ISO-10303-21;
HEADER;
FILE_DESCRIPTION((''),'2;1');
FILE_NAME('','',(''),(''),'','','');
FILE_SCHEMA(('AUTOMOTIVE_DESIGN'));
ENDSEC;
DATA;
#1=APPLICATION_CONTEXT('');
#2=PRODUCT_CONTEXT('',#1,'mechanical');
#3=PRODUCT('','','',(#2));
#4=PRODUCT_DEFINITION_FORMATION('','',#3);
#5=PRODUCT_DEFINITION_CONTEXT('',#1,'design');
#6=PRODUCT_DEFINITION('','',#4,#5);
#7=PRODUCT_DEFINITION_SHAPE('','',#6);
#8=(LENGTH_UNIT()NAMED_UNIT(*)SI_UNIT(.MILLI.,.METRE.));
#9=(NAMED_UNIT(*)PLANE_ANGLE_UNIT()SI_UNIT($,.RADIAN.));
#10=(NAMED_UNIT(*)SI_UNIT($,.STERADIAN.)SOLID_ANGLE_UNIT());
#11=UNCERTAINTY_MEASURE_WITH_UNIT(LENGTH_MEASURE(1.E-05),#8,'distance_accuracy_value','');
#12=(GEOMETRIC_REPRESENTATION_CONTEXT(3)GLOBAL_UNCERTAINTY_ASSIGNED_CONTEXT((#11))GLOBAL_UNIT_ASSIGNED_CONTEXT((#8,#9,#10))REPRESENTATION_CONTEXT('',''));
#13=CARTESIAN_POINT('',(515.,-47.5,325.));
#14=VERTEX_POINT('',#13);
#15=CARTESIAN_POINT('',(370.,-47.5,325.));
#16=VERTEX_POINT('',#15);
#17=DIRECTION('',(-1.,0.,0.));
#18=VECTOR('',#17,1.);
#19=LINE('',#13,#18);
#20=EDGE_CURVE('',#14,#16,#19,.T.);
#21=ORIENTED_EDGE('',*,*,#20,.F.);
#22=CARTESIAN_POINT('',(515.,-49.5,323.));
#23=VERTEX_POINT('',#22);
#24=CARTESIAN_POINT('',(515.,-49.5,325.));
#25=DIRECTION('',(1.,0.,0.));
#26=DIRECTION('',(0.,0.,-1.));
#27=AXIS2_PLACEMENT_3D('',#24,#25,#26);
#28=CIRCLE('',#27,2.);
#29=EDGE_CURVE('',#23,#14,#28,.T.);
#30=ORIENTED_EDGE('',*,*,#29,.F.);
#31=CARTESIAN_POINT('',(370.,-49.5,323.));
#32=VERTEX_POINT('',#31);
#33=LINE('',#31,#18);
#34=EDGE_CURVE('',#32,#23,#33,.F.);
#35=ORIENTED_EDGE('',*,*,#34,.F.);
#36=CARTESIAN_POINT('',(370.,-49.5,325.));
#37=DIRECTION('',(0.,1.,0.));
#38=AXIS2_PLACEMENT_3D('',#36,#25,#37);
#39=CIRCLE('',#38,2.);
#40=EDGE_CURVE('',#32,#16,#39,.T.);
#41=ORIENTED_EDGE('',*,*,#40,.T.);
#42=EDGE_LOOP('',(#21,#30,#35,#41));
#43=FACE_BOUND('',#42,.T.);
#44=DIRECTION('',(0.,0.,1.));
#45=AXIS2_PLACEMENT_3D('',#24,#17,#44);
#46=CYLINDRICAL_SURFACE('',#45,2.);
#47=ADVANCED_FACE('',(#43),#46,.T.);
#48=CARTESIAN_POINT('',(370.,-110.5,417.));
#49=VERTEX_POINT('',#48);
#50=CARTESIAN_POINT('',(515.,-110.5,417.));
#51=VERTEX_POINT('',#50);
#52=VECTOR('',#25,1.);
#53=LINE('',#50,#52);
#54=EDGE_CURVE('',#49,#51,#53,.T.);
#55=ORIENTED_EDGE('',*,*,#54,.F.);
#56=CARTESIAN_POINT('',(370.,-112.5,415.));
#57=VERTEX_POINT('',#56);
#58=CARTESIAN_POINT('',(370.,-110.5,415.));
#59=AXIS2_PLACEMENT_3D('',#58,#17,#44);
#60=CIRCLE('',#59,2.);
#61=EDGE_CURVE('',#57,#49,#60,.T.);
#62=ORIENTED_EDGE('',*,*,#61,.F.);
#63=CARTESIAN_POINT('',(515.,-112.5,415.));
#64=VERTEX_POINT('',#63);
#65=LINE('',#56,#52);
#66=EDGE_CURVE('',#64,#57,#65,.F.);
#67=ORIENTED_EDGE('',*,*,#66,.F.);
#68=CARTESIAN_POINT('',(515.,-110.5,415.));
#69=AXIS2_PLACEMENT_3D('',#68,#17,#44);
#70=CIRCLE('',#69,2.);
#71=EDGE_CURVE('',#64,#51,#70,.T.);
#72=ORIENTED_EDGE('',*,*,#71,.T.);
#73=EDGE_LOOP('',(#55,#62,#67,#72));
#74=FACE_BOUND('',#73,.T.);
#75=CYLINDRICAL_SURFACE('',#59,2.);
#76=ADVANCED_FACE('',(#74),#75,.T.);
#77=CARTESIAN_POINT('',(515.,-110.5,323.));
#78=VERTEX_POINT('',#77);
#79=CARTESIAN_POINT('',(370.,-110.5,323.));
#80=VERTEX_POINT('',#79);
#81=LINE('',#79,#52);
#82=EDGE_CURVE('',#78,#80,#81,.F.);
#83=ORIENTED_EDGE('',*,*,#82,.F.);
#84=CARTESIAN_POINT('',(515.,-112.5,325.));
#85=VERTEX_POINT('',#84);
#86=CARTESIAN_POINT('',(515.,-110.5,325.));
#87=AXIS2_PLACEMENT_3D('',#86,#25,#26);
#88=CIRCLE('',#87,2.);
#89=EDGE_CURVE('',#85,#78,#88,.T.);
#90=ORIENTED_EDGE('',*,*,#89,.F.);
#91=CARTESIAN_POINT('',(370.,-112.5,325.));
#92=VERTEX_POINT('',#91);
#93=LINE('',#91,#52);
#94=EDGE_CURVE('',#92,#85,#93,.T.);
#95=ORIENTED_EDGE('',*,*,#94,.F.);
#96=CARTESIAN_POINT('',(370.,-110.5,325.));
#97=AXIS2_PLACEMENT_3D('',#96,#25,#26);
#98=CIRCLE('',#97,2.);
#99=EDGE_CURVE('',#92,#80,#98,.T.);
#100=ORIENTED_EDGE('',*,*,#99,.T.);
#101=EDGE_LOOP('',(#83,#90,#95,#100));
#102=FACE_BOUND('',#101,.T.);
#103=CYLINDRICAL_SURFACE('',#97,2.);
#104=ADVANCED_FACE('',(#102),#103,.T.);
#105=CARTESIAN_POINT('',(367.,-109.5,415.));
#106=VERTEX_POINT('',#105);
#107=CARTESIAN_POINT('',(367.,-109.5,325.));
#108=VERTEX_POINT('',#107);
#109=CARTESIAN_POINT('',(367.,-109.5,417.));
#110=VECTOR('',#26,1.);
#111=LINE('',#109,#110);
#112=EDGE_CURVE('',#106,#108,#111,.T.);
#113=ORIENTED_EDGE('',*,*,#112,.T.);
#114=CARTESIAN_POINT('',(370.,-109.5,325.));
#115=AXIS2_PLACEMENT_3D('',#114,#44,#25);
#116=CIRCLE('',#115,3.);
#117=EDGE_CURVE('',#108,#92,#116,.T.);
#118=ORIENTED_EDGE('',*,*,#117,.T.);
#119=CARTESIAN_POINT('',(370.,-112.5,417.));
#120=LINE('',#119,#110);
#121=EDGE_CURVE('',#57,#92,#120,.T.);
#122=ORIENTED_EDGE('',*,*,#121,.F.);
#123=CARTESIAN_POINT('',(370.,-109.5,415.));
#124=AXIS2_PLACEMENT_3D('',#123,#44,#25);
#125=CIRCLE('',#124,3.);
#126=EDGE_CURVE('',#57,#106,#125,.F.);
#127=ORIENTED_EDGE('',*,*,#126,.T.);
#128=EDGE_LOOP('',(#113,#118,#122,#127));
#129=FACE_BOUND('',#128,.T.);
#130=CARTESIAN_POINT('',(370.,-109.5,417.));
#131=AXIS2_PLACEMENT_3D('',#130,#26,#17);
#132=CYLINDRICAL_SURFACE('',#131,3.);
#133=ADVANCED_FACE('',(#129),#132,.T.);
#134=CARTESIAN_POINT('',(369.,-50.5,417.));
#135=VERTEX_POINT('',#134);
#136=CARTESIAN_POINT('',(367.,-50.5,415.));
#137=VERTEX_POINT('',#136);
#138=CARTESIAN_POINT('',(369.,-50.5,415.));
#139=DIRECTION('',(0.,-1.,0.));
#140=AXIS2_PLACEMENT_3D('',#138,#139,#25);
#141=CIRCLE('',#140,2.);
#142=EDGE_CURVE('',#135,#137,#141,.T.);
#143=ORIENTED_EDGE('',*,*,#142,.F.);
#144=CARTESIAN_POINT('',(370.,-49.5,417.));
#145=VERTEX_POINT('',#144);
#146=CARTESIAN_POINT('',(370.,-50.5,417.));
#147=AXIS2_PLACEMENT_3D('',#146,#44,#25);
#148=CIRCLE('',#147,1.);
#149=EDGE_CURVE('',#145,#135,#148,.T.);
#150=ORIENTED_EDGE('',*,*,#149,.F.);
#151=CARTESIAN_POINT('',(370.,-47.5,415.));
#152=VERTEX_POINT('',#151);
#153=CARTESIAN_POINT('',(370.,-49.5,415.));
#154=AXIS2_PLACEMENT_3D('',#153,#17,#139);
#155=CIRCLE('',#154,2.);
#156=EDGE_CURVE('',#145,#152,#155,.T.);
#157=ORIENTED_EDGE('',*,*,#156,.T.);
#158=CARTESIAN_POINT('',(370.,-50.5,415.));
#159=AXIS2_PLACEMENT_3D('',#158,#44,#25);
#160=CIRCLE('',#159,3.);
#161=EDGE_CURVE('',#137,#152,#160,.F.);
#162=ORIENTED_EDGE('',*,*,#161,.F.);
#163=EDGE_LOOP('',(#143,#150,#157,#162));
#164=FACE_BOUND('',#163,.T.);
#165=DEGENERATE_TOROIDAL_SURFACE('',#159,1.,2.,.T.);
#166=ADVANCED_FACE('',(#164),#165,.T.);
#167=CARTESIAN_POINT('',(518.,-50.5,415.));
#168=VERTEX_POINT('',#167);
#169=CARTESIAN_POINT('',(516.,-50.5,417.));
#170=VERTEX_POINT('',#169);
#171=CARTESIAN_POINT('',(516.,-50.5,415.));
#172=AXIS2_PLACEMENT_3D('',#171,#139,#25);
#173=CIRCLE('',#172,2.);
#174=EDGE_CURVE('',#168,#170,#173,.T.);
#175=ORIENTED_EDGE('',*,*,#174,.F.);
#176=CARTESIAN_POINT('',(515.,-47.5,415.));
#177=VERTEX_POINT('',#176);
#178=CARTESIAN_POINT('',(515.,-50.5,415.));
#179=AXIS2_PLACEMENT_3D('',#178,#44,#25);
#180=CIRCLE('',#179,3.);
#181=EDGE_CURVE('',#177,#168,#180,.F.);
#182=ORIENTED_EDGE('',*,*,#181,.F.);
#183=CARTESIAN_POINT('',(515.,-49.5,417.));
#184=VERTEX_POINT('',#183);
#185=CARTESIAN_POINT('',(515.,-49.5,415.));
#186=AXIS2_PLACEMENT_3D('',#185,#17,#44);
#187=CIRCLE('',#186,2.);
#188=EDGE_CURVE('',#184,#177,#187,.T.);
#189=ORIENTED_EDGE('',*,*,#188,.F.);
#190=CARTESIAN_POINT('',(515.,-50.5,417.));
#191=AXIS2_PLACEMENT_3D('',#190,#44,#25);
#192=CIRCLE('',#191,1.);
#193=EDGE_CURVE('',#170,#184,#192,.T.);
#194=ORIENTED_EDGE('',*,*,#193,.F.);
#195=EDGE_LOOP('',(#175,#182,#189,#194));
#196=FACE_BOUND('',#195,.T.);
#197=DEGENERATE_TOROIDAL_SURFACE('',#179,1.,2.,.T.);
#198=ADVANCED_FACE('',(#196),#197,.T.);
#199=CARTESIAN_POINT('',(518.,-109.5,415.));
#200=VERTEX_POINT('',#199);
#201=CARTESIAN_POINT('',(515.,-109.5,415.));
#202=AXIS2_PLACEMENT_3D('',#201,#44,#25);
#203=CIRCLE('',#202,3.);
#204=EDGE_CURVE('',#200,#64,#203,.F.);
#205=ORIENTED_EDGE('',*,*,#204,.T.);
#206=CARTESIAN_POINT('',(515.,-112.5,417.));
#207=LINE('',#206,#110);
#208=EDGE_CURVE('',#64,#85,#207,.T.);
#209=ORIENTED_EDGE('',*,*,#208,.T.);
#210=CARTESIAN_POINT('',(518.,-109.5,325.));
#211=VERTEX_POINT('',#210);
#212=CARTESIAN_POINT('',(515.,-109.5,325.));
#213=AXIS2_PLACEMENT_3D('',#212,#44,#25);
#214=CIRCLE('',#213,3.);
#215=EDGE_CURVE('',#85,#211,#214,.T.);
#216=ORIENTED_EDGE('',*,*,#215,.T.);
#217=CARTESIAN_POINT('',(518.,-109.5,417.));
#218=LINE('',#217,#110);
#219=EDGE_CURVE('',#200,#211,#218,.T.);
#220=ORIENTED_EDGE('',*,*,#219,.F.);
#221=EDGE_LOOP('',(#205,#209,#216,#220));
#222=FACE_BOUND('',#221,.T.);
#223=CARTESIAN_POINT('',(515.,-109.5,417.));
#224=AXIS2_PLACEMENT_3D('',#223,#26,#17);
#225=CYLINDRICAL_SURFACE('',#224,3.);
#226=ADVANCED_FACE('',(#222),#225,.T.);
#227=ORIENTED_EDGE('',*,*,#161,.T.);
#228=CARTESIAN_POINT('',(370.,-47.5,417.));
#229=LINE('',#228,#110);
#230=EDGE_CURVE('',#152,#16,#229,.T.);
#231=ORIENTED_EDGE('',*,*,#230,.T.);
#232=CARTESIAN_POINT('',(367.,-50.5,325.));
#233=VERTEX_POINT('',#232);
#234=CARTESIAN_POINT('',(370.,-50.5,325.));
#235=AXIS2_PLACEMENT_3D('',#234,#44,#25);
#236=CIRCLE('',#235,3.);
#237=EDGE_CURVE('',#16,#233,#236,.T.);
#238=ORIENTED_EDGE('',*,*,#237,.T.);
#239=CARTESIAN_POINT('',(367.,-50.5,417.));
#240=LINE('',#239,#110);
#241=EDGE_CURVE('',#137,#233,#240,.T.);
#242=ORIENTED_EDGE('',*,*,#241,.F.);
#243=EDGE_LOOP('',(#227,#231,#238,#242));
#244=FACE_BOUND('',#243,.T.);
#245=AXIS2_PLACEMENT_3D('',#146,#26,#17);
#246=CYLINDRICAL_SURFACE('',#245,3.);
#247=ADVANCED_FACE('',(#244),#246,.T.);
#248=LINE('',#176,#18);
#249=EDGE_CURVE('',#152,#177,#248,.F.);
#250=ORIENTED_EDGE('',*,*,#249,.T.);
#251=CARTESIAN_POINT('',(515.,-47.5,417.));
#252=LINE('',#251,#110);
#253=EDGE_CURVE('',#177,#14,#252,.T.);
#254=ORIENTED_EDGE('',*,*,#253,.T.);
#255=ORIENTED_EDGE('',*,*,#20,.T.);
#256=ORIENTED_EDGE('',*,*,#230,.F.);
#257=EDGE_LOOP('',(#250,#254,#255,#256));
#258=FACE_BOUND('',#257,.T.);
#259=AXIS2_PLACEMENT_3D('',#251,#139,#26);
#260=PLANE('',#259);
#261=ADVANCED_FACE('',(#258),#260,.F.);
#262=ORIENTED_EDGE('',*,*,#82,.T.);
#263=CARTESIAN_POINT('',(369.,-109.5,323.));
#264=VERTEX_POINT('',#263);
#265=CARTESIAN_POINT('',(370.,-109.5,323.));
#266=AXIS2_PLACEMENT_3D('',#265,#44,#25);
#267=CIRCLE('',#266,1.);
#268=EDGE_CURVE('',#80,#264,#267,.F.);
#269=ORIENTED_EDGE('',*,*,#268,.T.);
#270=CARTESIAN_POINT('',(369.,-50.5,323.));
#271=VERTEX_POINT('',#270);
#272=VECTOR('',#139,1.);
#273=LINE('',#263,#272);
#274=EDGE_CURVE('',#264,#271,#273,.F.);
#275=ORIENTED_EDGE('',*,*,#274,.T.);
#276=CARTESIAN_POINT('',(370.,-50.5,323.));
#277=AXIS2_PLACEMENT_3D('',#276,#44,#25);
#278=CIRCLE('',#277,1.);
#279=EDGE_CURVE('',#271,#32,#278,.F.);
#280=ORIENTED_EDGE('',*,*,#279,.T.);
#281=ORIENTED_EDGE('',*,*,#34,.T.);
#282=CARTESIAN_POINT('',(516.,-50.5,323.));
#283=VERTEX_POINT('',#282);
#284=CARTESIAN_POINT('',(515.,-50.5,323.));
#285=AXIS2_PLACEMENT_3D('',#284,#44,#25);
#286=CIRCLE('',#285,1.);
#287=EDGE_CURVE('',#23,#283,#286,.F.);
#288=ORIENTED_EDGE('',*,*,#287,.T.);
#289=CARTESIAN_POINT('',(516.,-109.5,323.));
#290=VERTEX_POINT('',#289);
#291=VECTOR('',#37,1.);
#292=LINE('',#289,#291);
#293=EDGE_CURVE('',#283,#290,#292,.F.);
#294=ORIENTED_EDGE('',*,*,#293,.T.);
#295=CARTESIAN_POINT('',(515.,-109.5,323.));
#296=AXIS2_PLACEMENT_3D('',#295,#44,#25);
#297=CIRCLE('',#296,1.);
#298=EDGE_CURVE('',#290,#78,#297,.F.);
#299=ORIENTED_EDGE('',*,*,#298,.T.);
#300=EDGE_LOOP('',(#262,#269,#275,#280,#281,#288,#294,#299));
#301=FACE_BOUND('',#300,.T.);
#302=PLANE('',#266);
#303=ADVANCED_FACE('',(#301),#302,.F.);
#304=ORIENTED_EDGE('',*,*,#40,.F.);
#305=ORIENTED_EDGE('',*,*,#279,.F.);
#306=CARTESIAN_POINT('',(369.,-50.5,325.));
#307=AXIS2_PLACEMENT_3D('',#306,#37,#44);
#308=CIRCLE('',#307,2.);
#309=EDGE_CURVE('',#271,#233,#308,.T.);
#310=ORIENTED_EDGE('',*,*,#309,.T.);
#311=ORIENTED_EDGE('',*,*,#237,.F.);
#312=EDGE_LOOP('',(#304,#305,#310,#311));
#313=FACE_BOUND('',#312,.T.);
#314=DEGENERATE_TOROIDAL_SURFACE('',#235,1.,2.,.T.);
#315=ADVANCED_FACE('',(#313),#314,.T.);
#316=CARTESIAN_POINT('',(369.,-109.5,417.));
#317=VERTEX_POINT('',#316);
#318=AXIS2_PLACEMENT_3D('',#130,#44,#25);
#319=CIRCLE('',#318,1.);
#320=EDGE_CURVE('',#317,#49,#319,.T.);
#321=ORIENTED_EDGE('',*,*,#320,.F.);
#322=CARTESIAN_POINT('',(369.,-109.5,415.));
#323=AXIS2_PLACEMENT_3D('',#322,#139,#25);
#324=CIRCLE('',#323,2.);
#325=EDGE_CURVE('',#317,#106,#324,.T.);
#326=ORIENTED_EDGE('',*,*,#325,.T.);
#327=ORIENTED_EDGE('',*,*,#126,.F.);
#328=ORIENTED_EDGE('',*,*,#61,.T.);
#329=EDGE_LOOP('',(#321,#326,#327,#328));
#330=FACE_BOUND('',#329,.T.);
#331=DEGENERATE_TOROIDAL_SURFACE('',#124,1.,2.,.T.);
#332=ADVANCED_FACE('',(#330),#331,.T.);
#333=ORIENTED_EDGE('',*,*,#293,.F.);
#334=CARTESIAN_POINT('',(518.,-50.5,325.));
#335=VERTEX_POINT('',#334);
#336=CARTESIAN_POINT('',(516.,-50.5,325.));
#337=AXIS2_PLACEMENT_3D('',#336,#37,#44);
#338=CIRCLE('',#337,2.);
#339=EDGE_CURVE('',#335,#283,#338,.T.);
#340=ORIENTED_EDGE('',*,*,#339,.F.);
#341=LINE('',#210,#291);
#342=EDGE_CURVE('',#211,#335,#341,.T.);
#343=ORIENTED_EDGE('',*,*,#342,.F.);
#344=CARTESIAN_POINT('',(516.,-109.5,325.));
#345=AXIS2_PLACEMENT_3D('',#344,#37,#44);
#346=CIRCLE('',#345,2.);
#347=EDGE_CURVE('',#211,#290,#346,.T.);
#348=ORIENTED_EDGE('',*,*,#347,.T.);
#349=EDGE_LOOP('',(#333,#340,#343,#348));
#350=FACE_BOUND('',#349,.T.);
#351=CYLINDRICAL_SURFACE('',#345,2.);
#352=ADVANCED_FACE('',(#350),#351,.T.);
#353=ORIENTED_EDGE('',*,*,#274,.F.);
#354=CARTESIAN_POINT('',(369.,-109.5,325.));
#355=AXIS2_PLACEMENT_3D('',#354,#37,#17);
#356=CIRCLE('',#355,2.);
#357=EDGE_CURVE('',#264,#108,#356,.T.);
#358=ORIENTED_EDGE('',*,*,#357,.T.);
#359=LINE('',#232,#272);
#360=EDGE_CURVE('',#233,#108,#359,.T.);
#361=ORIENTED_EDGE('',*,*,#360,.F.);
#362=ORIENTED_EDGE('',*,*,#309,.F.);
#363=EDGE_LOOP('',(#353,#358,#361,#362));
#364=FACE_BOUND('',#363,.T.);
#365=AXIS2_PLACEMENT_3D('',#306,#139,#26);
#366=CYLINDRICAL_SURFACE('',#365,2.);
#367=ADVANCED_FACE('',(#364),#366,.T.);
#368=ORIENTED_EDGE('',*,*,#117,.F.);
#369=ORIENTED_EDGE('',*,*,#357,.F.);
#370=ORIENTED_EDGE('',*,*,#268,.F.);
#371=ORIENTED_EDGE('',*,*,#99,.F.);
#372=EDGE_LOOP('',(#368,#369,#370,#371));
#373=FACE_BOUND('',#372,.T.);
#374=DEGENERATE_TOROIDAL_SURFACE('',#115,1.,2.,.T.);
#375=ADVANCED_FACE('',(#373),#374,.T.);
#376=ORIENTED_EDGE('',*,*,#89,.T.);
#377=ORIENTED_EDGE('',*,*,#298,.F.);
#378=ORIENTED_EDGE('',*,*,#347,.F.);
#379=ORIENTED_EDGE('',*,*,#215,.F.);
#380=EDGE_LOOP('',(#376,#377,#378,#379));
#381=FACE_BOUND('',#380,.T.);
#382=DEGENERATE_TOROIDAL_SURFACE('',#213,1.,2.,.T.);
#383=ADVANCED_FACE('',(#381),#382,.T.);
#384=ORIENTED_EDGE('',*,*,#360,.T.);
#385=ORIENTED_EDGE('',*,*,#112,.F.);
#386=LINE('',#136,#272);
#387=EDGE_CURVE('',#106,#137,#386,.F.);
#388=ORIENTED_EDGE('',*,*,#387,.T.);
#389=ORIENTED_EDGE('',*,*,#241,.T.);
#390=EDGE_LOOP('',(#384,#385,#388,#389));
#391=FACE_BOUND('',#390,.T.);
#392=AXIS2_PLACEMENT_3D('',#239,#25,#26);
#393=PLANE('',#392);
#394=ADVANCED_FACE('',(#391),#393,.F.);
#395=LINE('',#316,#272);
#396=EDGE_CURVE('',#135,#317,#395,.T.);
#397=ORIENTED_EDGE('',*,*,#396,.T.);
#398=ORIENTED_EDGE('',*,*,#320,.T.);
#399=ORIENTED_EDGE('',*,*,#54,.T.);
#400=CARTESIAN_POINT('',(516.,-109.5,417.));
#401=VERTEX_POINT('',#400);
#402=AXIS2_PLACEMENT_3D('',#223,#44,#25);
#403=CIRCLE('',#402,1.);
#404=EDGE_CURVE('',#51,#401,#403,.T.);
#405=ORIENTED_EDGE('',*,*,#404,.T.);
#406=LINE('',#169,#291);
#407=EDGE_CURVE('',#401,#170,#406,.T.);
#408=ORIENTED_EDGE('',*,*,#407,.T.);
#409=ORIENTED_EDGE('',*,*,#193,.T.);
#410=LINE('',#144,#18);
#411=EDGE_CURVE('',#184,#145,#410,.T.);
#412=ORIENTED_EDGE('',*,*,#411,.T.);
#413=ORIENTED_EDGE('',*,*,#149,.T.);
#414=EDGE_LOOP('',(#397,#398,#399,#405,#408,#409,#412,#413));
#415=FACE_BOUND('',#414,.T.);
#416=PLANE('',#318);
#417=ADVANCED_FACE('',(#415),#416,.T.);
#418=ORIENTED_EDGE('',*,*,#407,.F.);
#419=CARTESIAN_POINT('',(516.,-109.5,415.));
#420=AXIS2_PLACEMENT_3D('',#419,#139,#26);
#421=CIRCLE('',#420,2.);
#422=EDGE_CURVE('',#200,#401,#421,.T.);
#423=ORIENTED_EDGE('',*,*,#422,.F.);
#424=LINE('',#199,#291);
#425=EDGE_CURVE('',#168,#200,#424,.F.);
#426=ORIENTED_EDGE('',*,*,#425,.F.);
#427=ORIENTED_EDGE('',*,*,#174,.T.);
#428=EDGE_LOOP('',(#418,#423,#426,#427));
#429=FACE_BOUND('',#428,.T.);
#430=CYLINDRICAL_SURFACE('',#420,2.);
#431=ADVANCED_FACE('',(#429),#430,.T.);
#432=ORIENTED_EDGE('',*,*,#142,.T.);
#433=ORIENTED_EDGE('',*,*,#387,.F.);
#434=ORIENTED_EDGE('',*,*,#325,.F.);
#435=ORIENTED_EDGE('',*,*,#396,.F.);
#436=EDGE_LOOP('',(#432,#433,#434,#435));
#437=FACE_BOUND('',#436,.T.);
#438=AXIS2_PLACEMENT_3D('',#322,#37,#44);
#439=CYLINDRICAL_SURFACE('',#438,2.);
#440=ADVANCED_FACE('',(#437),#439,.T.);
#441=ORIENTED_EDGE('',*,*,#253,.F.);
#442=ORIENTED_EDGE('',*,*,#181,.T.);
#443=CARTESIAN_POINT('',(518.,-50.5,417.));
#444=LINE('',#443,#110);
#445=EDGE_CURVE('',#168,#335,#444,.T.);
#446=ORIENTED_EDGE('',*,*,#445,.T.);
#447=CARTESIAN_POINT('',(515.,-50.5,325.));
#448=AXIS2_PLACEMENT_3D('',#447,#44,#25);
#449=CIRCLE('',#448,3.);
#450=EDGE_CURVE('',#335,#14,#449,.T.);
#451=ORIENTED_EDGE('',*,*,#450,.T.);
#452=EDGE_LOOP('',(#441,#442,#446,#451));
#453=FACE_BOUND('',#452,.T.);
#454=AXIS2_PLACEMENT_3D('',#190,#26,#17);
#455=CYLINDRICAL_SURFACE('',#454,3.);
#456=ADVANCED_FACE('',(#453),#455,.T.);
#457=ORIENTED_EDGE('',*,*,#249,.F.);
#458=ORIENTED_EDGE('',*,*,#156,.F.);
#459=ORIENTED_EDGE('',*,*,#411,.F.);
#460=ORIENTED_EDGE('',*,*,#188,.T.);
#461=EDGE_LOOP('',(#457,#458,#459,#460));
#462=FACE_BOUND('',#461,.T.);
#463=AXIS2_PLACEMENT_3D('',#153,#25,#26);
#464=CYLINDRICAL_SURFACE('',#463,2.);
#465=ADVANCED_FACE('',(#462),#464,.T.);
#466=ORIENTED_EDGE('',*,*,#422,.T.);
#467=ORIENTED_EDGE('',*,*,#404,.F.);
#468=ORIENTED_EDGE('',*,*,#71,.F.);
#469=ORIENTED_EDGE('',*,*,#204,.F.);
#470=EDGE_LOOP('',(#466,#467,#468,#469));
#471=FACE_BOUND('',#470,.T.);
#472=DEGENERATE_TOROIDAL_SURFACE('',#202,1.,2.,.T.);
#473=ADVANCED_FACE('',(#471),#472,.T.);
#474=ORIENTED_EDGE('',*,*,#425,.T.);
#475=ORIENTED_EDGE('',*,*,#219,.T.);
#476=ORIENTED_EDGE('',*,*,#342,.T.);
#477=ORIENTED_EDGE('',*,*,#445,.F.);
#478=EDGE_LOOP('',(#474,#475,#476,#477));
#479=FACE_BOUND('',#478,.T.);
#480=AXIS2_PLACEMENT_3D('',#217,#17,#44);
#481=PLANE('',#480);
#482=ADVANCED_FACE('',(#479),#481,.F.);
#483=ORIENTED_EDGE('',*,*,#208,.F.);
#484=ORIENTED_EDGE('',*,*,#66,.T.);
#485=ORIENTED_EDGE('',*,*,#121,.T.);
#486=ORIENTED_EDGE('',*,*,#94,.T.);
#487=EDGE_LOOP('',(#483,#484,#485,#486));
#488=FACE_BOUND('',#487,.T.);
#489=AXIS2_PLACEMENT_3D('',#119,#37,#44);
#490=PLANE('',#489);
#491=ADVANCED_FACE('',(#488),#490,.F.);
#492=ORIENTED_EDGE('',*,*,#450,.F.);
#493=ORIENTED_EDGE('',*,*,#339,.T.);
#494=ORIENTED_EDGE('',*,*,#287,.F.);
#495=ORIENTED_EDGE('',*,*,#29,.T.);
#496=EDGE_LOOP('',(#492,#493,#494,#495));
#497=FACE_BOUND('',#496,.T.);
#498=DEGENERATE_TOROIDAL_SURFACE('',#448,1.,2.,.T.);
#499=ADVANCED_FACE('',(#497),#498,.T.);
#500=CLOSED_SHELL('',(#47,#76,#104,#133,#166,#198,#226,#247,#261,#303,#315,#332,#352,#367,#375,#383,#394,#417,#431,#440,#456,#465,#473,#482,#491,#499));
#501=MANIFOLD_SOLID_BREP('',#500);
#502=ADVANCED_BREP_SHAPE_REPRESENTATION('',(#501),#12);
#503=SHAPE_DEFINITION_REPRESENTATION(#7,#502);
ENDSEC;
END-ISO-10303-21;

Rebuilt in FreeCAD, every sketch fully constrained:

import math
import FreeCAD as App
import Part
import Sketcher


def edges_at(feature, points):
    """Names of the edges that pass closest to the given points."""
    edges = feature.Shape.Edges
    near = lambda p: min(range(len(edges)), key=lambda i: edges[i].distToShape(Part.Vertex(*p))[0])
    return sorted({f"Edge{near(p) + 1}" for p in points})

doc = App.newDocument("Part")
body = doc.addObject("PartDesign::Body", "Body")

sketch1 = body.newObject("Sketcher::SketchObject", "Sketch")
sketch1.AttachmentSupport = (doc.getObject("XY_Plane"), [""])
sketch1.MapMode = "FlatFace"
sketch1.AttachmentOffset = App.Placement(App.Vector(0, 0, 323), App.Rotation())
sketch1.addGeometry([
    Part.LineSegment(App.Vector(370, -112.5, 0), App.Vector(515, -112.5, 0)),
    Part.ArcOfCircle(Part.Circle(App.Vector(515, -109.5, 0), App.Vector(0, 0, 1), 3), math.radians(-90), math.radians(0)),
    Part.LineSegment(App.Vector(518, -109.5, 0), App.Vector(518, -50.5, 0)),
    Part.ArcOfCircle(Part.Circle(App.Vector(515, -50.5, 0), App.Vector(0, 0, 1), 3), math.radians(0), math.radians(90)),
    Part.LineSegment(App.Vector(515, -47.5, 0), App.Vector(370, -47.5, 0)),
    Part.ArcOfCircle(Part.Circle(App.Vector(370, -50.5, 0), App.Vector(0, 0, 1), 3), math.radians(90), math.radians(180)),
    Part.LineSegment(App.Vector(367, -50.5, 0), App.Vector(367, -109.5, 0)),
    Part.ArcOfCircle(Part.Circle(App.Vector(370, -109.5, 0), App.Vector(0, 0, 1), 3), math.radians(180), math.radians(270)),
], False)
sketch1.addConstraint([
    Sketcher.Constraint("Tangent", 0, 2, 1, 1),
    Sketcher.Constraint("Tangent", 1, 2, 2, 1),
    Sketcher.Constraint("Tangent", 2, 2, 3, 1),
    Sketcher.Constraint("Tangent", 3, 2, 4, 1),
    Sketcher.Constraint("Tangent", 4, 2, 5, 1),
    Sketcher.Constraint("Tangent", 5, 2, 6, 1),
    Sketcher.Constraint("Tangent", 6, 2, 7, 1),
    Sketcher.Constraint("Tangent", 7, 2, 0, 1),
    Sketcher.Constraint("Horizontal", 0),
    Sketcher.Constraint("Vertical", 2),
    Sketcher.Constraint("Horizontal", 4),
    Sketcher.Constraint("Vertical", 6),
    Sketcher.Constraint("Equal", 1, 3),
    Sketcher.Constraint("Equal", 3, 5),
    Sketcher.Constraint("Equal", 5, 7),
    Sketcher.Constraint("Radius", 1, 3.0),
    Sketcher.Constraint("DistanceX", 0, 1, 0, 2, 145.0),
    Sketcher.Constraint("DistanceY", 2, 1, 2, 2, 59.0),
    Sketcher.Constraint("DistanceX", -1, 1, 1, 3, 515.0),
    Sketcher.Constraint("DistanceY", 1, 3, -1, 1, 109.5),
])
pad1 = body.newObject("PartDesign::Pad", "Pad")
pad1.Profile = sketch1
pad1.Length = 94
doc.recompute()

fillet = body.newObject("PartDesign::Fillet", "Fillet")
fillet.Base = (pad1, edges_at(pad1, [
    (518, -80, 323),
    (517.121, -111.621, 323),
    (442.5, -112.5, 323),
    (367.879, -111.621, 323),
    (517.121, -111.621, 417),
    (518, -80, 417),
    (517.121, -48.379, 417),
    (442.5, -47.5, 417),
    (367.879, -48.379, 417),
    (367, -80, 417),
    (367.879, -111.621, 417),
    (367, -80, 323),
    (442.5, -112.5, 417),
    (367.879, -48.379, 323),
    (442.5, -47.5, 323),
    (517.121, -48.379, 323),
]))
fillet.Radius = 2

doc.recompute()
